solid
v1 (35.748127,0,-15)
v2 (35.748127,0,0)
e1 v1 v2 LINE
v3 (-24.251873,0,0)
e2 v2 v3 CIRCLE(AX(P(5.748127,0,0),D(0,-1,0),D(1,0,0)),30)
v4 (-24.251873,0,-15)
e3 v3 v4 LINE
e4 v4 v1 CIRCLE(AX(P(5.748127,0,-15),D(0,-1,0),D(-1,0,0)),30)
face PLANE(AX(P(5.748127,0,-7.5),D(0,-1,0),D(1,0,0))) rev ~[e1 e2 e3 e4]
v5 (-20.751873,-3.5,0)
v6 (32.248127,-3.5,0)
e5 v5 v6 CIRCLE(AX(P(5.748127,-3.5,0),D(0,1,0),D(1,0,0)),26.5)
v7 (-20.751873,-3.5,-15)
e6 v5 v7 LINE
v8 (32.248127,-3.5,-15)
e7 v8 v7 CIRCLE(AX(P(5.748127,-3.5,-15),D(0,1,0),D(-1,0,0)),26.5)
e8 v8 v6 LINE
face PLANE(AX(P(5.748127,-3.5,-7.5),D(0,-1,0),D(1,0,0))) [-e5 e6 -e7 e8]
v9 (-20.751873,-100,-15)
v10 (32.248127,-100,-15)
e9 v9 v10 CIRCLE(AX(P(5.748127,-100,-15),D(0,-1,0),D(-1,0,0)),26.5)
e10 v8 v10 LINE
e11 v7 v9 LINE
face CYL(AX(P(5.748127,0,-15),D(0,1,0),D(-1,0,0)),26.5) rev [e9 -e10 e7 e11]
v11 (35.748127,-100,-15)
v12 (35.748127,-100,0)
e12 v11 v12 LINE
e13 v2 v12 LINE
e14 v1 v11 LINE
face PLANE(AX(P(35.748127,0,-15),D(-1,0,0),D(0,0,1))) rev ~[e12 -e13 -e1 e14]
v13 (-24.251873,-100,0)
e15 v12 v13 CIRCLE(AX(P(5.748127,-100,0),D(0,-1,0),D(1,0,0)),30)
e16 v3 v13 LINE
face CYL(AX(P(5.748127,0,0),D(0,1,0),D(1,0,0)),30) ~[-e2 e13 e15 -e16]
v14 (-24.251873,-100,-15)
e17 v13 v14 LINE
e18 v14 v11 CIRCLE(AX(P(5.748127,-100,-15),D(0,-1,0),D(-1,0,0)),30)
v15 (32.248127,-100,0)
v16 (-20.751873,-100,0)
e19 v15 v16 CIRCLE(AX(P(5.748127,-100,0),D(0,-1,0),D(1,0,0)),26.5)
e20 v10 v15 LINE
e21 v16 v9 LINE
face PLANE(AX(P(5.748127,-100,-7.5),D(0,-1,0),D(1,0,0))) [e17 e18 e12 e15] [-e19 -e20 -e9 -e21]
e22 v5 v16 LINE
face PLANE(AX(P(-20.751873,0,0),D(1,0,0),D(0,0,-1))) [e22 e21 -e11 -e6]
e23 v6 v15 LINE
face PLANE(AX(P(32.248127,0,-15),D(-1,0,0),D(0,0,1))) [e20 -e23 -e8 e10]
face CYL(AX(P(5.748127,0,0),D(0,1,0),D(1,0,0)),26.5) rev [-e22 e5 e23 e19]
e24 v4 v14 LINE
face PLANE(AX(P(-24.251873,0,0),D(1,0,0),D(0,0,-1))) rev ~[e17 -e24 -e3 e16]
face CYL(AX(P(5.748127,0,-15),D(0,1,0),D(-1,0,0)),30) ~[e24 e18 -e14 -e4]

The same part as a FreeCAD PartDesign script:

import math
import FreeCAD as App
import Part
import Sketcher


def faces_at(feature, points):
    """Names of the faces that lie closest to the given points."""
    faces = feature.Shape.Faces
    near = lambda p: min(range(len(faces)), key=lambda i: faces[i].distToShape(Part.Vertex(*p))[0])
    return sorted({f"Face{near(p) + 1}" for p in points})

doc = App.newDocument("Part")
body = doc.addObject("PartDesign::Body", "Body")

# Sketch on XZ plane
sketch1 = body.newObject("Sketcher::SketchObject", "Sketch")
sketch1.AttachmentSupport = (doc.getObject("XZ_Plane"), [""])
sketch1.MapMode = "FlatFace"
sketch1.addGeometry(Part.LineSegment(App.Vector(36, -15, 0), App.Vector(36, 0, 0)), False)
sketch1.addGeometry(Part.ArcOfCircle(Part.Circle(App.Vector(6, 0, 0), App.Vector(0, 0, 1), 30), math.radians(0), math.radians(180)), False)
sketch1.addGeometry(Part.LineSegment(App.Vector(-24, 0, 0), App.Vector(-24, -15, 0)), False)
sketch1.addGeometry(Part.ArcOfCircle(Part.Circle(App.Vector(6, -15, 0), App.Vector(0, 0, 1), 30), math.radians(180), math.radians(360)), False)
sketch1.addConstraint(Sketcher.Constraint("Tangent", 0, 2, 1, 1))
sketch1.addConstraint(Sketcher.Constraint("Tangent", 1, 2, 2, 1))
sketch1.addConstraint(Sketcher.Constraint("Tangent", 2, 2, 3, 1))
sketch1.addConstraint(Sketcher.Constraint("Tangent", 3, 2, 0, 1))
sketch1.addConstraint(Sketcher.Constraint("Vertical", 0))
sketch1.addConstraint(Sketcher.Constraint("Vertical", 2))
sketch1.addConstraint(Sketcher.Constraint("PointOnObject", 1, 3, -1))
sketch1.addConstraint(Sketcher.Constraint("Radius", 1, 30.0))
sketch1.addConstraint(Sketcher.Constraint("DistanceY", 0, 1, 0, 2, 15.0))
sketch1.addConstraint(Sketcher.Constraint("DistanceX", -1, 1, 1, 3, 5.748127))
pad1 = body.newObject("PartDesign::Pad", "Pad")
pad1.Profile = sketch1
pad1.Length = 100
doc.recompute()

thickness = body.newObject("PartDesign::Thickness", "Thickness")
thickness.Base = (pad1, faces_at(pad1, [(5.748, -100, -7.5)]))
thickness.Value = 3.5
thickness.Reversed = True
thickness.Join = "Arc"

doc.recompute()
